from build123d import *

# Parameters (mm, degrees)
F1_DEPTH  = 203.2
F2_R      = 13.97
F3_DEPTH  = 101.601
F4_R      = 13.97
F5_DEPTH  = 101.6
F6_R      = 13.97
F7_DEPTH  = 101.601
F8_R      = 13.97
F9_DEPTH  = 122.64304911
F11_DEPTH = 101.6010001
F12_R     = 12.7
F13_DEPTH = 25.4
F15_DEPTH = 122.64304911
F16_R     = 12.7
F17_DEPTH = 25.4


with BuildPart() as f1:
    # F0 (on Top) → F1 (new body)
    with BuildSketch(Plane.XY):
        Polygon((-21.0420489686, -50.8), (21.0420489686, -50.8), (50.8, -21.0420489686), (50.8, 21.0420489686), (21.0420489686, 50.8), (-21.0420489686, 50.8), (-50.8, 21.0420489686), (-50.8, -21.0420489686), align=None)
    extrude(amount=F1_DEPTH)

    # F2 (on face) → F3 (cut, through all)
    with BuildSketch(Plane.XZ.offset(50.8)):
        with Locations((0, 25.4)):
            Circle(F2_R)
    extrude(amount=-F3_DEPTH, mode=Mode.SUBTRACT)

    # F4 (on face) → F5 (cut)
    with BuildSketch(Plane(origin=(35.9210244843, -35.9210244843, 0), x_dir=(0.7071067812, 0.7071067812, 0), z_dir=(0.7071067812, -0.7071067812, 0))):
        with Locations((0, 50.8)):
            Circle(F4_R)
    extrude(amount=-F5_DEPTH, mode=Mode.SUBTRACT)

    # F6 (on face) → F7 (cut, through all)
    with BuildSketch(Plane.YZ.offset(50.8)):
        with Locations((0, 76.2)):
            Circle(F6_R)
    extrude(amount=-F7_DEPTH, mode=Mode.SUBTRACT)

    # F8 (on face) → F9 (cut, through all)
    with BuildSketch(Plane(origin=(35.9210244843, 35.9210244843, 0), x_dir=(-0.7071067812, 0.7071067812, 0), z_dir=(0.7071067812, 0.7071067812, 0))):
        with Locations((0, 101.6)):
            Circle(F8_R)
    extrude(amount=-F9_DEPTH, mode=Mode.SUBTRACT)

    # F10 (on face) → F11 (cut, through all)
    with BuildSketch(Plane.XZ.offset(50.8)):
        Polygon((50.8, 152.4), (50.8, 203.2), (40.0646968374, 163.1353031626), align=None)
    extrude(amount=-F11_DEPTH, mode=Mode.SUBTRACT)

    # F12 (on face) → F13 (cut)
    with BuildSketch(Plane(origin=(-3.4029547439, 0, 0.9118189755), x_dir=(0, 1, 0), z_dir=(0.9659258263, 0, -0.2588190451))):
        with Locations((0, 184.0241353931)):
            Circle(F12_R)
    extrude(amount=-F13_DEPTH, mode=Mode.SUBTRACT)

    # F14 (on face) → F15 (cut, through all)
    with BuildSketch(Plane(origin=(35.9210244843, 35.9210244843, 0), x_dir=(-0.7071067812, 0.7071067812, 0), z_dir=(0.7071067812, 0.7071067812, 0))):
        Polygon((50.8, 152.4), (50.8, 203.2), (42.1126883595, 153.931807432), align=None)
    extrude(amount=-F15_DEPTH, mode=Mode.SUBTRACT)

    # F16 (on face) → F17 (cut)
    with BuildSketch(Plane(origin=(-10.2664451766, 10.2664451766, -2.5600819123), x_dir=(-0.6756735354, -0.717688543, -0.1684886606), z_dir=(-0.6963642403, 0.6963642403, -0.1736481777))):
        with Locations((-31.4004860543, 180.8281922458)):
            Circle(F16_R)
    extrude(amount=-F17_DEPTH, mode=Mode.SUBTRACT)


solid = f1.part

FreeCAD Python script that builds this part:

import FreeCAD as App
import Part
import Sketcher
from FreeCAD import Vector
Q = App.Units.Quantity

doc = App.newDocument("Part")
body = doc.addObject("PartDesign::Body", "Body")

# Sketch on XY plane
sketch1 = body.newObject("Sketcher::SketchObject", "Sketch")
sketch1.AttachmentSupport = (doc.getObject("XY_Plane"), [""])
sketch1.MapMode = "FlatFace"
sketch1.addGeometry(Part.LineSegment(Vector(-21, -51, 0), Vector(21, -51, 0)), False)
sketch1.addGeometry(Part.LineSegment(Vector(21, -51, 0), Vector(51, -21, 0)), False)
sketch1.addGeometry(Part.LineSegment(Vector(51, -21, 0), Vector(51, 21, 0)), False)
sketch1.addGeometry(Part.LineSegment(Vector(51, 21, 0), Vector(21, 51, 0)), False)
sketch1.addGeometry(Part.LineSegment(Vector(21, 51, 0), Vector(-21, 51, 0)), False)
sketch1.addGeometry(Part.LineSegment(Vector(-21, 51, 0), Vector(-51, 21, 0)), False)
sketch1.addGeometry(Part.LineSegment(Vector(-51, 21, 0), Vector(-51, -21, 0)), False)
sketch1.addGeometry(Part.LineSegment(Vector(-51, -21, 0), Vector(-21, -51, 0)), False)
sketch1.addConstraint(Sketcher.Constraint("Coincident", 0, 2, 1, 1))
sketch1.addConstraint(Sketcher.Constraint("Coincident", 1, 2, 2, 1))
sketch1.addConstraint(Sketcher.Constraint("Coincident", 2, 2, 3, 1))
sketch1.addConstraint(Sketcher.Constraint("Coincident", 3, 2, 4, 1))
sketch1.addConstraint(Sketcher.Constraint("Coincident", 4, 2, 5, 1))
sketch1.addConstraint(Sketcher.Constraint("Coincident", 5, 2, 6, 1))
sketch1.addConstraint(Sketcher.Constraint("Coincident", 6, 2, 7, 1))
sketch1.addConstraint(Sketcher.Constraint("Coincident", 7, 2, 0, 1))
sketch1.addConstraint(Sketcher.Constraint("Horizontal", 0))
sketch1.addConstraint(Sketcher.Constraint("Vertical", 2))
sketch1.addConstraint(Sketcher.Constraint("Horizontal", 4))
sketch1.addConstraint(Sketcher.Constraint("Vertical", 6))
sketch1.addConstraint(Sketcher.Constraint("Symmetric", 0, 2, 4, 2, -1, 1))
sketch1.addConstraint(Sketcher.Constraint("Symmetric", 1, 2, 5, 2, -1, 1))
sketch1.addConstraint(Sketcher.Constraint("Perpendicular", 1, 3))
sketch1.addConstraint(Sketcher.Constraint("Perpendicular", 5, 7))
sketch1.addConstraint(Sketcher.Constraint("Horizontal", 2, 2, 5, 2))
sketch1.addConstraint(Sketcher.Constraint("Horizontal", 1, 2, 6, 2))
sketch1.addConstraint(Sketcher.Constraint("Vertical", 0, 2, 3, 2))
sketch1.addConstraint(Sketcher.Constraint("Equal", 4, 2))
sketch1.addConstraint(Sketcher.Constraint("DistanceY", 0, 2, -1, 1, Q("2 in")))
sketch1.addConstraint(Sketcher.Constraint("DistanceX", 0, 1, 0, 2, 42.084098))
pad1 = body.newObject("PartDesign::Pad", "Pad")
pad1.Profile = sketch1
pad1.Length = Q("8 in")

# Sketch on XZ plane
sketch2 = body.newObject("Sketcher::SketchObject", "Sketch001")
sketch2.AttachmentSupport = (doc.getObject("XZ_Plane"), [""])
sketch2.MapMode = "FlatFace"
sketch2.AttachmentOffset = App.Placement(Vector(0, 0, 2 * 25.4), App.Rotation())
sketch2.addGeometry(Part.Circle(Vector(0, 25, 0), Vector(0, 0, 1), 14), False)
sketch2.addConstraint(Sketcher.Constraint("PointOnObject", 0, 3, -2))
sketch2.addConstraint(Sketcher.Constraint("Diameter", 0, Q("1.1 in")))
sketch2.addConstraint(Sketcher.Constraint("DistanceY", -1, 1, 0, 3, Q("1 in")))
pocket1 = body.newObject("PartDesign::Pocket", "Pocket")
pocket1.Profile = sketch2
pocket1.Type = "ThroughAll"

# Sketch on an angled plane
sketch3 = body.newObject("Sketcher::SketchObject", "Sketch002")
sketch3.Placement = App.Placement(Vector(35.921024, -35.921024, 0), App.Rotation(Vector(0.707106781, 0.707106781, 0), Vector(0, 0, 0.999999999), Vector(0.707106781, -0.707106781, 0), "ZXY"))
sketch3.addGeometry(Part.Circle(Vector(0, 51, 0), Vector(0, 0, 1), 14), False)
sketch3.addConstraint(Sketcher.Constraint("PointOnObject", 0, 3, -2))
sketch3.addConstraint(Sketcher.Constraint("Diameter", 0, Q("1.1 in")))
sketch3.addConstraint(Sketcher.Constraint("DistanceY", -1, 1, 0, 3, Q("2 in")))
pocket2 = body.newObject("PartDesign::Pocket", "Pocket001")
pocket2.Profile = sketch3
pocket2.Length = Q("4 in")

# Sketch on YZ plane
sketch4 = body.newObject("Sketcher::SketchObject", "Sketch003")
sketch4.AttachmentSupport = (doc.getObject("YZ_Plane"), [""])
sketch4.MapMode = "FlatFace"
sketch4.AttachmentOffset = App.Placement(Vector(0, 0, 2 * 25.4), App.Rotation())
sketch4.addGeometry(Part.Circle(Vector(0, 76, 0), Vector(0, 0, 1), 14), False)
sketch4.addConstraint(Sketcher.Constraint("PointOnObject", 0, 3, -2))
sketch4.addConstraint(Sketcher.Constraint("Diameter", 0, Q("1.1 in")))
sketch4.addConstraint(Sketcher.Constraint("DistanceY", -1, 1, 0, 3, Q("3 in")))
pocket3 = body.newObject("PartDesign::Pocket", "Pocket002")
pocket3.Profile = sketch4
pocket3.Type = "ThroughAll"

# Sketch on an angled plane
sketch5 = body.newObject("Sketcher::SketchObject", "Sketch004")
sketch5.Placement = App.Placement(Vector(35.921024, 35.921024, 0), App.Rotation(Vector(-0.707106781, 0.707106781, 0), Vector(0, 0, 0.999999999), Vector(0.707106781, 0.707106781, 0), "ZXY"))
sketch5.addGeometry(Part.Circle(Vector(0, 102, 0), Vector(0, 0, 1), 14), False)
sketch5.addConstraint(Sketcher.Constraint("PointOnObject", 0, 3, -2))
sketch5.addConstraint(Sketcher.Constraint("Diameter", 0, Q("1.1 in")))
sketch5.addConstraint(Sketcher.Constraint("DistanceY", -1, 1, 0, 3, Q("4 in")))
pocket4 = body.newObject("PartDesign::Pocket", "Pocket003")
pocket4.Profile = sketch5
pocket4.Type = "ThroughAll"

# Sketch on XZ plane
sketch6 = body.newObject("Sketcher::SketchObject", "Sketch005")
sketch6.AttachmentSupport = (doc.getObject("XZ_Plane"), [""])
sketch6.MapMode = "FlatFace"
sketch6.AttachmentOffset = App.Placement(Vector(0, 0, 2 * 25.4), App.Rotation())
sketch6.addGeometry(Part.LineSegment(Vector(51, 152, 0), Vector(51, 203, 0)), False)
sketch6.addGeometry(Part.LineSegment(Vector(51, 203, 0), Vector(40, 163, 0)), False)
sketch6.addGeometry(Part.LineSegment(Vector(40, 163, 0), Vector(51, 152, 0)), False)
sketch6.addConstraint(Sketcher.Constraint("Coincident", 0, 2, 1, 1))
sketch6.addConstraint(Sketcher.Constraint("Coincident", 1, 2, 2, 1))
sketch6.addConstraint(Sketcher.Constraint("Coincident", 2, 2, 0, 1))
sketch6.addConstraint(Sketcher.Constraint("Vertical", 0))
sketch6.addConstraint(Sketcher.Constraint("DistanceY", 0, 1, 0, 2, Q("2 in")))
sketch6.addConstraint(Sketcher.Constraint("DistanceX", -1, 1, 0, 2, Q("2 in")))
sketch6.addConstraint(Sketcher.Constraint("DistanceY", -1, 1, 0, 2, Q("8 in")))
sketch6.addConstraint(Sketcher.Constraint("Angle", 1, Q("-105 deg")))
sketch6.addConstraint(Sketcher.Constraint("Angle", 2, Q("-45 deg")))
pocket5 = body.newObject("PartDesign::Pocket", "Pocket004")
pocket5.Profile = sketch6
pocket5.Type = "ThroughAll"

# Sketch on an angled plane
sketch7 = body.newObject("Sketcher::SketchObject", "Sketch006")
sketch7.Placement = App.Placement(Vector(-3.402955, 0, 0.911819), App.Rotation(Vector(0, 1, 0), Vector(0.258819045, 0, 0.965925826), Vector(0.965925826, 0, -0.258819045), "ZXY"))
sketch7.addGeometry(Part.Circle(Vector(0, 184, 0), Vector(0, 0, 1), 13), False)
sketch7.addConstraint(Sketcher.Constraint("PointOnObject", 0, 3, -2))
sketch7.addConstraint(Sketcher.Constraint("Diameter", 0, Q("1 in")))
sketch7.addConstraint(Sketcher.Constraint("DistanceY", -1, 1, 0, 3, 184.024135))
pocket6 = body.newObject("PartDesign::Pocket", "Pocket005")
pocket6.Profile = sketch7
pocket6.Length = Q("1 in")

# Sketch on an angled plane
sketch8 = body.newObject("Sketcher::SketchObject", "Sketch007")
sketch8.Placement = App.Placement(Vector(35.921024, 35.921024, 0), App.Rotation(Vector(-0.707106781, 0.707106781, 0), Vector(0, 0, 0.999999999), Vector(0.707106781, 0.707106781, 0), "ZXY"))
sketch8.addGeometry(Part.LineSegment(Vector(51, 152, 0), Vector(51, 203, 0)), False)
sketch8.addGeometry(Part.LineSegment(Vector(51, 203, 0), Vector(42, 154, 0)), False)
sketch8.addGeometry(Part.LineSegment(Vector(42, 154, 0), Vector(51, 152, 0)), False)
sketch8.addConstraint(Sketcher.Constraint("Coincident", 0, 2, 1, 1))
sketch8.addConstraint(Sketcher.Constraint("Coincident", 1, 2, 2, 1))
sketch8.addConstraint(Sketcher.Constraint("Coincident", 2, 2, 0, 1))
sketch8.addConstraint(Sketcher.Constraint("Vertical", 0))
sketch8.addConstraint(Sketcher.Constraint("Perpendicular", 1, 2))
sketch8.addConstraint(Sketcher.Constraint("DistanceY", 0, 1, 0, 2, Q("2 in")))
sketch8.addConstraint(Sketcher.Constraint("DistanceX", -1, 1, 0, 2, Q("2 in")))
sketch8.addConstraint(Sketcher.Constraint("DistanceY", -1, 1, 0, 2, Q("8 in")))
sketch8.addConstraint(Sketcher.Constraint("Angle", 1, Q("-100 deg")))
pocket7 = body.newObject("PartDesign::Pocket", "Pocket006")
pocket7.Profile = sketch8
pocket7.Type = "ThroughAll"

# Sketch on an angled plane
sketch9 = body.newObject("Sketcher::SketchObject", "Sketch008")
sketch9.Placement = App.Placement(Vector(-10.266445, 10.266445, -2.560082), App.Rotation(Vector(-0.675673535, -0.717688543, -0.168488661), Vector(-0.241954786, 0, 0.970287524), Vector(-0.69636424, 0.69636424, -0.173648178), "ZXY"))
sketch9.addGeometry(Part.Circle(Vector(-31, 181, 0), Vector(0, 0, 1), 13), False)
sketch9.addConstraint(Sketcher.Constraint("Diameter", 0, Q("1 in")))
sketch9.addConstraint(Sketcher.Constraint("DistanceX", 0, 3, -1, 1, 31.400486))
sketch9.addConstraint(Sketcher.Constraint("DistanceY", -1, 1, 0, 3, 180.828192))
pocket8 = body.newObject("PartDesign::Pocket", "Pocket007")
pocket8.Profile = sketch9
pocket8.Length = Q("1 in")

doc.recompute()
